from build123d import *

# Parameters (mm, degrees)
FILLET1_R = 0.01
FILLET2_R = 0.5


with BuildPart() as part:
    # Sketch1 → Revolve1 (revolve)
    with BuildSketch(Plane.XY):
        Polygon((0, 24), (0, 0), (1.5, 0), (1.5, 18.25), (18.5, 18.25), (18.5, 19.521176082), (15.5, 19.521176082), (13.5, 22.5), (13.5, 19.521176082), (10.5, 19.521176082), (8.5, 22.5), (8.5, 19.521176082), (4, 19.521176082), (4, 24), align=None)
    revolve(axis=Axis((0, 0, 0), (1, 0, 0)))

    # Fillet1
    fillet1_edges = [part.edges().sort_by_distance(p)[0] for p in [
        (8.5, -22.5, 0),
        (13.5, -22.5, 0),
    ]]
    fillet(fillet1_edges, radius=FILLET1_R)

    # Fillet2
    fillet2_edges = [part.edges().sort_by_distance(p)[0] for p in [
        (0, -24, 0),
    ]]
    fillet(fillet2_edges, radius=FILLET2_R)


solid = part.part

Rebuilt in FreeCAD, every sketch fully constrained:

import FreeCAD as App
import Part
import Sketcher


def edges_at(feature, points):
    """Names of the edges that pass closest to the given points."""
    edges = feature.Shape.Edges
    near = lambda p: min(range(len(edges)), key=lambda i: edges[i].distToShape(Part.Vertex(*p))[0])
    return sorted({f"Edge{near(p) + 1}" for p in points})

doc = App.newDocument("Part")
body = doc.addObject("PartDesign::Body", "Body")

# Sketch on XY plane
sketch1 = body.newObject("Sketcher::SketchObject", "Sketch")
sketch1.AttachmentSupport = (doc.getObject("XY_Plane"), [""])
sketch1.MapMode = "FlatFace"
sketch1.addGeometry(Part.LineSegment(App.Vector(0, 24, 0), App.Vector(0, 0, 0)), False)
sketch1.addGeometry(Part.LineSegment(App.Vector(0, 0, 0), App.Vector(1.5, 0, 0)), False)
sketch1.addGeometry(Part.LineSegment(App.Vector(1.5, 0, 0), App.Vector(1.5, 18.2, 0)), False)
sketch1.addGeometry(Part.LineSegment(App.Vector(1.5, 18.2, 0), App.Vector(18.5, 18.2, 0)), False)
sketch1.addGeometry(Part.LineSegment(App.Vector(18.5, 18.2, 0), App.Vector(18.5, 19.5, 0)), False)
sketch1.addGeometry(Part.LineSegment(App.Vector(18.5, 19.5, 0), App.Vector(15.5, 19.5, 0)), False)
sketch1.addGeometry(Part.LineSegment(App.Vector(15.5, 19.5, 0), App.Vector(13.5, 22.5, 0)), False)
sketch1.addGeometry(Part.LineSegment(App.Vector(13.5, 22.5, 0), App.Vector(13.5, 19.5, 0)), False)
sketch1.addGeometry(Part.LineSegment(App.Vector(13.5, 19.5, 0), App.Vector(10.5, 19.5, 0)), False)
sketch1.addGeometry(Part.LineSegment(App.Vector(10.5, 19.5, 0), App.Vector(8.5, 22.5, 0)), False)
sketch1.addGeometry(Part.LineSegment(App.Vector(8.5, 22.5, 0), App.Vector(8.5, 19.5, 0)), False)
sketch1.addGeometry(Part.LineSegment(App.Vector(8.5, 19.5, 0), App.Vector(4, 19.5, 0)), False)
sketch1.addGeometry(Part.LineSegment(App.Vector(4, 19.5, 0), App.Vector(4, 24, 0)), False)
sketch1.addGeometry(Part.LineSegment(App.Vector(4, 24, 0), App.Vector(0, 24, 0)), False)
sketch1.addConstraint(Sketcher.Constraint("Coincident", 0, 2, 1, 1))
sketch1.addConstraint(Sketcher.Constraint("Coincident", 1, 2, 2, 1))
sketch1.addConstraint(Sketcher.Constraint("Coincident", 2, 2, 3, 1))
sketch1.addConstraint(Sketcher.Constraint("Coincident", 3, 2, 4, 1))
sketch1.addConstraint(Sketcher.Constraint("Coincident", 4, 2, 5, 1))
sketch1.addConstraint(Sketcher.Constraint("Coincident", 5, 2, 6, 1))
sketch1.addConstraint(Sketcher.Constraint("Coincident", 6, 2, 7, 1))
sketch1.addConstraint(Sketcher.Constraint("Coincident", 7, 2, 8, 1))
sketch1.addConstraint(Sketcher.Constraint("Coincident", 8, 2, 9, 1))
sketch1.addConstraint(Sketcher.Constraint("Coincident", 9, 2, 10, 1))
sketch1.addConstraint(Sketcher.Constraint("Coincident", 10, 2, 11, 1))
sketch1.addConstraint(Sketcher.Constraint("Coincident", 11, 2, 12, 1))
sketch1.addConstraint(Sketcher.Constraint("Coincident", 12, 2, 13, 1))
sketch1.addConstraint(Sketcher.Constraint("Coincident", 13, 2, 0, 1))
sketch1.addConstraint(Sketcher.Constraint("Vertical", 0))
sketch1.addConstraint(Sketcher.Constraint("Horizontal", 1))
sketch1.addConstraint(Sketcher.Constraint("Vertical", 2))
sketch1.addConstraint(Sketcher.Constraint("Horizontal", 3))
sketch1.addConstraint(Sketcher.Constraint("Vertical", 4))
sketch1.addConstraint(Sketcher.Constraint("Horizontal", 5))
sketch1.addConstraint(Sketcher.Constraint("Vertical", 7))
sketch1.addConstraint(Sketcher.Constraint("Horizontal", 8))
sketch1.addConstraint(Sketcher.Constraint("Vertical", 10))
sketch1.addConstraint(Sketcher.Constraint("Horizontal", 11))
sketch1.addConstraint(Sketcher.Constraint("Vertical", 12))
sketch1.addConstraint(Sketcher.Constraint("Horizontal", 13))
sketch1.addConstraint(Sketcher.Constraint("Coincident", 0, 2, -1, 1))
sketch1.addConstraint(Sketcher.Constraint("Parallel", 6, 9))
sketch1.addConstraint(Sketcher.Constraint("Horizontal", 5, 2, 7, 2))
sketch1.addConstraint(Sketcher.Constraint("Horizontal", 6, 2, 9, 2))
sketch1.addConstraint(Sketcher.Constraint("Horizontal", 8, 2, 10, 2))
sketch1.addConstraint(Sketcher.Constraint("Equal", 5, 8))
sketch1.addConstraint(Sketcher.Constraint("DistanceX", 3, 1, 3, 2, 17.0))
sketch1.addConstraint(Sketcher.Constraint("DistanceX", 5, 2, 5, 1, 3.0))
sketch1.addConstraint(Sketcher.Constraint("DistanceX", 13, 2, 13, 1, 4.0))
sketch1.addConstraint(Sketcher.Constraint("DistanceY", 0, 2, 0, 1, 24.0))
sketch1.addConstraint(Sketcher.Constraint("DistanceX", 1, 1, 1, 2, 1.5))
sketch1.addConstraint(Sketcher.Constraint("DistanceX", 11, 2, 11, 1, 4.5))
sketch1.addConstraint(Sketcher.Constraint("DistanceY", 2, 1, 2, 2, 18.25))
sketch1.addConstraint(Sketcher.Constraint("DistanceY", -1, 1, 6, 2, 22.5))
sketch1.addConstraint(Sketcher.Constraint("Distance", 6, 3.587951))
revolution = body.newObject("PartDesign::Revolution", "Revolution")
revolution.Profile = sketch1
revolution.ReferenceAxis = (sketch1, ["H_Axis"])
revolution.Angle = 360
doc.recompute()

fillet = body.newObject("PartDesign::Fillet", "Fillet")
fillet.Base = (revolution, edges_at(revolution, [(8.5, -22.5, 0), (13.5, -22.5, 0)]))
fillet.Radius = 0.01
doc.recompute()

fillet2 = body.newObject("PartDesign::Fillet", "Fillet001")
fillet2.Base = (fillet, edges_at(fillet, [(0, -24, 0)]))
fillet2.Radius = 0.5

doc.recompute()
